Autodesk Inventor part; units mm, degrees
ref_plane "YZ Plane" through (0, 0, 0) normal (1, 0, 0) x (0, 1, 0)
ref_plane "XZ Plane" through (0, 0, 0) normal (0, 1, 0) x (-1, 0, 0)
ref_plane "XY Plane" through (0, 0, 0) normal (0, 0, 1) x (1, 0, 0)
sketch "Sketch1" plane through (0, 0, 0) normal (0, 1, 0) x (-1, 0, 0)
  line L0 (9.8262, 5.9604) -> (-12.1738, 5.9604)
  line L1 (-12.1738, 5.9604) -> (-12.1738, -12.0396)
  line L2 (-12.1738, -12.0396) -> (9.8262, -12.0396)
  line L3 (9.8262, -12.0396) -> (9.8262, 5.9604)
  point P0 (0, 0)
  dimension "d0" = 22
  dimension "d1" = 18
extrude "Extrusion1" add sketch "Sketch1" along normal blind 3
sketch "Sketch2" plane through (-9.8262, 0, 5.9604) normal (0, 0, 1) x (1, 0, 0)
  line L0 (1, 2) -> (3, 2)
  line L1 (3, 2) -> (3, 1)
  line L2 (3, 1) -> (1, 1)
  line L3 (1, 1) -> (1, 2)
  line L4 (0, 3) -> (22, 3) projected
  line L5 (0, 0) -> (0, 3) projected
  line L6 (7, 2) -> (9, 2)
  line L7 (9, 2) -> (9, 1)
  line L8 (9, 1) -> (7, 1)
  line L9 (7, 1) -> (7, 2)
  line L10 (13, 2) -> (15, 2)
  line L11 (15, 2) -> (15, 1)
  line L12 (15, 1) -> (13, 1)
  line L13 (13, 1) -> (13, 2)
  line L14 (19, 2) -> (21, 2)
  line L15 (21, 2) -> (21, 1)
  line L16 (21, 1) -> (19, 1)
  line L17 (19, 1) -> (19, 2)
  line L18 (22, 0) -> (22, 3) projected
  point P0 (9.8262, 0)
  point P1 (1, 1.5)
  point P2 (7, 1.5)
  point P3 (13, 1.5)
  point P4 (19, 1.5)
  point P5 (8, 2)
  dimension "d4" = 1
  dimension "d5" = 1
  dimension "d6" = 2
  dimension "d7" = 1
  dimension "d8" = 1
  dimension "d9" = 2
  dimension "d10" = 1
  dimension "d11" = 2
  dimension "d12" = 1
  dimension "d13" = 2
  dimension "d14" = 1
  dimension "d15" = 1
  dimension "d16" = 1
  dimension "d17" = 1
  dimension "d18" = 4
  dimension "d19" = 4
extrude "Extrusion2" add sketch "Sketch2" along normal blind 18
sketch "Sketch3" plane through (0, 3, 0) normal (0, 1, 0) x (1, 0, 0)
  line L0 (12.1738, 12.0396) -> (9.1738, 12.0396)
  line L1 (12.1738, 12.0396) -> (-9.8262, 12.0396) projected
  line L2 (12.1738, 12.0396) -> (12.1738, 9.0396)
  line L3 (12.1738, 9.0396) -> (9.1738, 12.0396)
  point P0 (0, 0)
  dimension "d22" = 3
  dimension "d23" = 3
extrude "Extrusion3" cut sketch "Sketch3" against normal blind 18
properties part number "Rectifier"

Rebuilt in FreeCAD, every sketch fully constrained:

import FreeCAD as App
import Part
import Sketcher
from FreeCAD import Vector

doc = App.newDocument("Part")
body = doc.addObject("PartDesign::Body", "Body")

# Sketch on XZ plane
sketch1 = body.newObject("Sketcher::SketchObject", "Sketch")
sketch1.AttachmentSupport = (doc.getObject("XZ_Plane"), [""])
sketch1.MapMode = "FlatFace"
sketch1.addGeometry([
    Part.LineSegment(Vector(-10, -12, 0), Vector(-10, 6, 0)),
    Part.LineSegment(Vector(-10, 6, 0), Vector(12, 6, 0)),
    Part.LineSegment(Vector(12, 6, 0), Vector(12, -12, 0)),
    Part.LineSegment(Vector(12, -12, 0), Vector(-10, -12, 0)),
], False)
sketch1.addConstraint([
    Sketcher.Constraint("Coincident", 0, 2, 1, 1),
    Sketcher.Constraint("Coincident", 1, 2, 2, 1),
    Sketcher.Constraint("Coincident", 2, 2, 3, 1),
    Sketcher.Constraint("Coincident", 3, 2, 0, 1),
    Sketcher.Constraint("Vertical", 0),
    Sketcher.Constraint("Horizontal", 1),
    Sketcher.Constraint("Vertical", 2),
    Sketcher.Constraint("Horizontal", 3),
    Sketcher.Constraint("DistanceX", 1, 1, 1, 2, 22.0),
    Sketcher.Constraint("DistanceY", 0, 1, 0, 2, 18.0),
    Sketcher.Constraint("DistanceX", 0, 2, -1, 1, 9.8262),
    Sketcher.Constraint("DistanceY", -1, 1, 0, 2, 5.9604),
])
pad1 = body.newObject("PartDesign::Pad", "Pad")
pad1.Profile = sketch1
pad1.Length = 3
pad1.Reversed = True

# Sketch on XY plane
sketch2 = body.newObject("Sketcher::SketchObject", "Sketch001")
sketch2.AttachmentSupport = (doc.getObject("XY_Plane"), [""])
sketch2.MapMode = "FlatFace"
sketch2.AttachmentOffset = App.Placement(Vector(0, 0, 5.9604), App.Rotation())
sketch2.addGeometry([
    Part.LineSegment(Vector(-6.8, 2, 0), Vector(-8.8, 2, 0)),  # 0
    Part.LineSegment(Vector(-8.8, 2, 0), Vector(-8.8, 1, 0)),  # 1
    Part.LineSegment(Vector(-8.8, 1, 0), Vector(-6.8, 1, 0)),  # 2
    Part.LineSegment(Vector(-6.8, 1, 0), Vector(-6.8, 2, 0)),  # 3
    Part.LineSegment(Vector(-0.8, 2, 0), Vector(-2.8, 2, 0)),  # 4
    Part.LineSegment(Vector(-2.8, 2, 0), Vector(-2.8, 1, 0)),  # 5
    Part.LineSegment(Vector(-2.8, 1, 0), Vector(-0.8, 1, 0)),  # 6
    Part.LineSegment(Vector(-0.8, 1, 0), Vector(-0.8, 2, 0)),  # 7
    Part.LineSegment(Vector(5.2, 2, 0), Vector(3.2, 2, 0)),  # 8
    Part.LineSegment(Vector(3.2, 2, 0), Vector(3.2, 1, 0)),  # 9
    Part.LineSegment(Vector(3.2, 1, 0), Vector(5.2, 1, 0)),  # 10
    Part.LineSegment(Vector(5.2, 1, 0), Vector(5.2, 2, 0)),  # 11
    Part.LineSegment(Vector(11.2, 2, 0), Vector(9.2, 2, 0)),  # 12
    Part.LineSegment(Vector(9.2, 2, 0), Vector(9.2, 1, 0)),  # 13
    Part.LineSegment(Vector(9.2, 1, 0), Vector(11.2, 1, 0)),  # 14
    Part.LineSegment(Vector(11.2, 1, 0), Vector(11.2, 2, 0)),  # 15
], False)
sketch2.addConstraint([
    Sketcher.Constraint("Coincident", 0, 2, 1, 1),
    Sketcher.Constraint("Coincident", 1, 2, 2, 1),
    Sketcher.Constraint("Coincident", 2, 2, 3, 1),
    Sketcher.Constraint("Coincident", 3, 2, 0, 1),
    Sketcher.Constraint("Coincident", 4, 2, 5, 1),
    Sketcher.Constraint("Coincident", 5, 2, 6, 1),
    Sketcher.Constraint("Coincident", 6, 2, 7, 1),
    Sketcher.Constraint("Coincident", 7, 2, 4, 1),
    Sketcher.Constraint("Coincident", 8, 2, 9, 1),
    Sketcher.Constraint("Coincident", 9, 2, 10, 1),
    Sketcher.Constraint("Coincident", 10, 2, 11, 1),
    Sketcher.Constraint("Coincident", 11, 2, 8, 1),
    Sketcher.Constraint("Coincident", 12, 2, 13, 1),
    Sketcher.Constraint("Coincident", 13, 2, 14, 1),
    Sketcher.Constraint("Coincident", 14, 2, 15, 1),
    Sketcher.Constraint("Coincident", 15, 2, 12, 1),
    Sketcher.Constraint("Horizontal", 0),
    Sketcher.Constraint("Vertical", 1),
    Sketcher.Constraint("Horizontal", 2),
    Sketcher.Constraint("Vertical", 3),
    Sketcher.Constraint("Horizontal", 4),
    Sketcher.Constraint("Vertical", 5),
    Sketcher.Constraint("Horizontal", 6),
    Sketcher.Constraint("Vertical", 7),
    Sketcher.Constraint("Horizontal", 8),
    Sketcher.Constraint("Vertical", 9),
    Sketcher.Constraint("Horizontal", 10),
    Sketcher.Constraint("Vertical", 11),
    Sketcher.Constraint("Horizontal", 12),
    Sketcher.Constraint("Vertical", 13),
    Sketcher.Constraint("Horizontal", 14),
    Sketcher.Constraint("Vertical", 15),
    Sketcher.Constraint("Horizontal", 3, 2, 4, 2),
    Sketcher.Constraint("Horizontal", 2, 2, 5, 2),
    Sketcher.Constraint("Horizontal", 7, 2, 8, 2),
    Sketcher.Constraint("Horizontal", 6, 2, 9, 2),
    Sketcher.Constraint("Horizontal", 11, 2, 12, 2),
    Sketcher.Constraint("Horizontal", 10, 2, 13, 2),
    Sketcher.Constraint("Equal", 2, 4),
    Sketcher.Constraint("Equal", 6, 8),
    Sketcher.Constraint("Equal", 10, 12),
    Sketcher.Constraint("DistanceX", 0, 2, 0, 1, 2.0),
    Sketcher.Constraint("DistanceY", 1, 2, 1, 1, 1.0),
    Sketcher.Constraint("DistanceY", -1, 1, 0, 2, 2.0),
    Sketcher.Constraint("DistanceX", 3, 2, 4, 2, 4.0),
    Sketcher.Constraint("DistanceX", 7, 2, 8, 2, 4.0),
    Sketcher.Constraint("DistanceX", 11, 2, 12, 2, 4.0),
    Sketcher.Constraint("DistanceX", 0, 2, -1, 1, 8.8262),
])
pad2 = body.newObject("PartDesign::Pad", "Pad001")
pad2.Profile = sketch2
pad2.Length = 18

# Sketch on XZ plane
sketch3 = body.newObject("Sketcher::SketchObject", "Sketch002")
sketch3.AttachmentSupport = (doc.getObject("XZ_Plane"), [""])
sketch3.MapMode = "FlatFace"
sketch3.AttachmentOffset = App.Placement(Vector(0, 0, -3), App.Rotation())
sketch3.addGeometry([
    Part.LineSegment(Vector(12.2, -9, 0), Vector(12.2, -12, 0)),
    Part.LineSegment(Vector(12.2, -12, 0), Vector(9.2, -12, 0)),
    Part.LineSegment(Vector(9.2, -12, 0), Vector(12.2, -9, 0)),
], False)
sketch3.addConstraint([
    Sketcher.Constraint("Coincident", 0, 2, 1, 1),
    Sketcher.Constraint("Coincident", 1, 2, 2, 1),
    Sketcher.Constraint("Coincident", 2, 2, 0, 1),
    Sketcher.Constraint("Vertical", 0),
    Sketcher.Constraint("Horizontal", 1),
    Sketcher.Constraint("Equal", 1, 0),
    Sketcher.Constraint("DistanceX", 1, 2, 1, 1, 3.0),
    Sketcher.Constraint("DistanceX", -1, 1, 0, 2, 12.1738),
    Sketcher.Constraint("DistanceY", 0, 2, -1, 1, 12.0396),
])
pocket1 = body.newObject("PartDesign::Pocket", "Pocket")
pocket1.Profile = sketch3
pocket1.Length = 18
pocket1.Reversed = True

doc.recompute()
